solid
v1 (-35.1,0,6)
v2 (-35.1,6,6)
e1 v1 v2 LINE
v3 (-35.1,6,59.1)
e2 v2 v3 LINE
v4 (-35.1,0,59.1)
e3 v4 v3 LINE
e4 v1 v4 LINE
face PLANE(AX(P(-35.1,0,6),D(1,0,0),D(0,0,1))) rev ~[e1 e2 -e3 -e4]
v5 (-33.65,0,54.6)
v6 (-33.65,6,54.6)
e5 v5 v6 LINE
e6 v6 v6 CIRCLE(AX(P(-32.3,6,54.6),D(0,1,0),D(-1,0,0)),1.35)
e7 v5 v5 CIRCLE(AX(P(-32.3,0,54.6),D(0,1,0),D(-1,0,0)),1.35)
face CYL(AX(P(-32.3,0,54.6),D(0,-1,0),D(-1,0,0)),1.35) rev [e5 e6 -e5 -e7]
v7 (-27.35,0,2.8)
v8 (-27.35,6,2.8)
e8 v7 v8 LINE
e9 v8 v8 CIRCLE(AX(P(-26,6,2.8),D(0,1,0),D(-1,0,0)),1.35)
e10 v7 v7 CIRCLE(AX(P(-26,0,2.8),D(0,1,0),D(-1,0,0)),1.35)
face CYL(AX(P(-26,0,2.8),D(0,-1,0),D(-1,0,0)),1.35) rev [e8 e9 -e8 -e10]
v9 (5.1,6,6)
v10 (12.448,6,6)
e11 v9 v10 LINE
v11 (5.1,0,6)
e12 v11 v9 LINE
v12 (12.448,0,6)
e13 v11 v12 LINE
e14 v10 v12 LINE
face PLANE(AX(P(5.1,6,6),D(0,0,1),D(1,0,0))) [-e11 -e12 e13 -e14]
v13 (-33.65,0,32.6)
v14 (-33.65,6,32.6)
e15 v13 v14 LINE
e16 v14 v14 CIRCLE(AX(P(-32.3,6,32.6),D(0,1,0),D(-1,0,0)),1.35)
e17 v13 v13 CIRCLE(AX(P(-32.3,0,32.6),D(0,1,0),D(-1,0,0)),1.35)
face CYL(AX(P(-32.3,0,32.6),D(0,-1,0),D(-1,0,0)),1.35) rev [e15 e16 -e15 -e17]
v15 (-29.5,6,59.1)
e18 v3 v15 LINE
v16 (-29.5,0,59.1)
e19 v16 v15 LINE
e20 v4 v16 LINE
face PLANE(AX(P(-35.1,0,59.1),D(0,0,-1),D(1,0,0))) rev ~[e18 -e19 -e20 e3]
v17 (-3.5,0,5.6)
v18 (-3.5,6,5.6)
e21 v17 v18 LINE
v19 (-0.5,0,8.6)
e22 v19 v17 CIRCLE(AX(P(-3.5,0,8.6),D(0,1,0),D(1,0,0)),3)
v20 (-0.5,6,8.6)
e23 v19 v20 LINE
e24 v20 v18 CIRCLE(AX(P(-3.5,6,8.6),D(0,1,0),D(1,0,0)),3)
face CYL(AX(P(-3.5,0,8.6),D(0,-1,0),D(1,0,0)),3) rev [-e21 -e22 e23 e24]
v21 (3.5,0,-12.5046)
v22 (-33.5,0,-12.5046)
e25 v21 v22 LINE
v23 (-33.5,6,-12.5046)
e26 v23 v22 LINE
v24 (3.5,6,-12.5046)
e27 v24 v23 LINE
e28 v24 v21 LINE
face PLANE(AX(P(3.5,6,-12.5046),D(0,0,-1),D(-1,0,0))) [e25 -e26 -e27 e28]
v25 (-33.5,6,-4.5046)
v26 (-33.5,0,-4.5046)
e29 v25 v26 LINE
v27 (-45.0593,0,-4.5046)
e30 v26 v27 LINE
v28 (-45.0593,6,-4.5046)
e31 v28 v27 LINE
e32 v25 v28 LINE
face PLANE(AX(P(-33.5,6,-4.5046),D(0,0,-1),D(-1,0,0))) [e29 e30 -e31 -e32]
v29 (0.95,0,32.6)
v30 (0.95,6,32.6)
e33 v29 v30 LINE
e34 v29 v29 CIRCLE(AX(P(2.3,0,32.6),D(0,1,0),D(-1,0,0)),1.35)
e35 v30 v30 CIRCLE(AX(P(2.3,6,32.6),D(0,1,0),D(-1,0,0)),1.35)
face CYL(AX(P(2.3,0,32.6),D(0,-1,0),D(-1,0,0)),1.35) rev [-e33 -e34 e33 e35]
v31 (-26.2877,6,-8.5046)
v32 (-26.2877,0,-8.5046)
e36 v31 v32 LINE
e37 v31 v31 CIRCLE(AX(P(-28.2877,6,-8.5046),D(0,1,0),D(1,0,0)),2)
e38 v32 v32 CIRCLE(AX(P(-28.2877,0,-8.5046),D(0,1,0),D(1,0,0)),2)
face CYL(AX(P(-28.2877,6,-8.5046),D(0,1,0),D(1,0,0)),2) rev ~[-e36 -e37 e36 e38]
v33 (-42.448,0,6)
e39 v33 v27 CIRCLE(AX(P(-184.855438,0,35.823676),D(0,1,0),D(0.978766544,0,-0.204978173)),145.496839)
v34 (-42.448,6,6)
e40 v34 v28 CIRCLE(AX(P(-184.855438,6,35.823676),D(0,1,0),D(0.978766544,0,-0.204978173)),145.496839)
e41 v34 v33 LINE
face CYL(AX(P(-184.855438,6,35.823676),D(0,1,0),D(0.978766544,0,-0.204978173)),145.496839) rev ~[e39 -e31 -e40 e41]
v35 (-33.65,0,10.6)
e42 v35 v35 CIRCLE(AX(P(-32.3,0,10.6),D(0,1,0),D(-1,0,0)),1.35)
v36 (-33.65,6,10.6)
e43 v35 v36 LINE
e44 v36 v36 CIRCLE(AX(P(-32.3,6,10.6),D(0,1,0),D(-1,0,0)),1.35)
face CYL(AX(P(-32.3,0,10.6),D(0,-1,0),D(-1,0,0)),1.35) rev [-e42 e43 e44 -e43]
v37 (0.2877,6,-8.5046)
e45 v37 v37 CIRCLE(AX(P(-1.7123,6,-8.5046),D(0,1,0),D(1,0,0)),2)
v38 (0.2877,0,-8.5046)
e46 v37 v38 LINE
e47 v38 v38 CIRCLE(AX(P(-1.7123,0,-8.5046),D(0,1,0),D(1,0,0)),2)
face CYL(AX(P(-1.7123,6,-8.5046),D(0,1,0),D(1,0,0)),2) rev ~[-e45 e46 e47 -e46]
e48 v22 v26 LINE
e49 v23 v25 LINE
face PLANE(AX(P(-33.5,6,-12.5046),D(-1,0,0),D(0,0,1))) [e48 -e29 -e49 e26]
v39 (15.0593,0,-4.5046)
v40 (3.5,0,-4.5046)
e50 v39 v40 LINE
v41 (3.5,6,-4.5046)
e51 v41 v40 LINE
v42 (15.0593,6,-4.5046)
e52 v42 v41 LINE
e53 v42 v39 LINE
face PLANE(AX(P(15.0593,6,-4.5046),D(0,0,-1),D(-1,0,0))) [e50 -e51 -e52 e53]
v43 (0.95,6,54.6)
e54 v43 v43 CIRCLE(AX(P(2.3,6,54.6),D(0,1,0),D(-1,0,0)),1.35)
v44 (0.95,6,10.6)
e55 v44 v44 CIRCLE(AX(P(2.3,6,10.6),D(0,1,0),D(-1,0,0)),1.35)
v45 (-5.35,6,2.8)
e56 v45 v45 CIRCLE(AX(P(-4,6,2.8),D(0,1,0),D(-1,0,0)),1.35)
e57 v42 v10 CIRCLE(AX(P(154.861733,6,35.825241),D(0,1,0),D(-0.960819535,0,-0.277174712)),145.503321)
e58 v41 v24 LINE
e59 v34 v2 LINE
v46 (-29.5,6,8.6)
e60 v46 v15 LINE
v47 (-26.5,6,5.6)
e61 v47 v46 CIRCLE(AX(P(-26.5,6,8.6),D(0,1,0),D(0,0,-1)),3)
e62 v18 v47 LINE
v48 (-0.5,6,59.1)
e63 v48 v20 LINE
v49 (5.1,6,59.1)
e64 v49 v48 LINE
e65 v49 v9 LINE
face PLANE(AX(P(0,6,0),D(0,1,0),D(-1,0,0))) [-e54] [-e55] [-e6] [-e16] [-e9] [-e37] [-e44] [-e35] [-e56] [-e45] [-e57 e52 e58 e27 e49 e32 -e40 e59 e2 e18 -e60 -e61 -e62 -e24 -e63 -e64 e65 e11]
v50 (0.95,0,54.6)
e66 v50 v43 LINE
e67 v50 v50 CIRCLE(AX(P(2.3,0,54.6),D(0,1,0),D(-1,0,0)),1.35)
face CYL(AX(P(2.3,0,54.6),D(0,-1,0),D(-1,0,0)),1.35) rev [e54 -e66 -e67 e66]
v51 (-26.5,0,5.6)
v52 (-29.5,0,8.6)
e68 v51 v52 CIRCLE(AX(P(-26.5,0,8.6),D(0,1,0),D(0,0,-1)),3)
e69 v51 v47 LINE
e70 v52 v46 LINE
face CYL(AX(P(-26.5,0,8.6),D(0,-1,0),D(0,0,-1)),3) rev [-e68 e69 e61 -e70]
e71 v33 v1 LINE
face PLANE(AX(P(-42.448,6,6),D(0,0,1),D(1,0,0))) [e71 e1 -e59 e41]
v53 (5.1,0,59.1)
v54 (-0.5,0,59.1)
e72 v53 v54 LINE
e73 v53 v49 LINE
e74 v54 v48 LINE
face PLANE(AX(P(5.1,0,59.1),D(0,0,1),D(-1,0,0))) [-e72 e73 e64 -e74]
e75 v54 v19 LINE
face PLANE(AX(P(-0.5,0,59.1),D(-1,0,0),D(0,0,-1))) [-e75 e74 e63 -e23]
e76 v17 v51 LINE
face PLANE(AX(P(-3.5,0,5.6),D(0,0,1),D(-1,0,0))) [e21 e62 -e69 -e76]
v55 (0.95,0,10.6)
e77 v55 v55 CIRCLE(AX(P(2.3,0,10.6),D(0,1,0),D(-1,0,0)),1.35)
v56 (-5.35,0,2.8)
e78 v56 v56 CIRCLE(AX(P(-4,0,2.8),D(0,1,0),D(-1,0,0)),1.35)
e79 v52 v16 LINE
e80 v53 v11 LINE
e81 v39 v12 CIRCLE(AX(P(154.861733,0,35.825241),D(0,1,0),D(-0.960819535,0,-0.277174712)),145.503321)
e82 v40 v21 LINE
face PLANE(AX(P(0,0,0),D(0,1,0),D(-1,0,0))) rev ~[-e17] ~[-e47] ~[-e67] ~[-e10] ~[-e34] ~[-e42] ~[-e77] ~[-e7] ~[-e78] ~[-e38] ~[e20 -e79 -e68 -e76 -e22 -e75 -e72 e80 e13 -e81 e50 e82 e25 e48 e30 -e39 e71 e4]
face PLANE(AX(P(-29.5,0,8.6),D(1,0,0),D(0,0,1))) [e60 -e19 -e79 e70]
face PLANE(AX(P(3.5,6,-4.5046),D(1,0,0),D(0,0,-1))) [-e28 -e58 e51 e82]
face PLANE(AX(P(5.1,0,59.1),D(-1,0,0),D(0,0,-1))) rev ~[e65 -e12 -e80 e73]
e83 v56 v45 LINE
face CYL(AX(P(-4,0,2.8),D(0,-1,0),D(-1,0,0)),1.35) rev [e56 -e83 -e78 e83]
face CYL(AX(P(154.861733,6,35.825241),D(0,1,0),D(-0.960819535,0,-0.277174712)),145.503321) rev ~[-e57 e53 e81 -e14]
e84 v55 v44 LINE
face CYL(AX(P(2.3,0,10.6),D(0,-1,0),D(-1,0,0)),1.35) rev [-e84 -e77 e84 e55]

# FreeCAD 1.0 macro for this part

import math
import FreeCAD as App
import Part
import Sketcher
Q = App.Units.Quantity

doc = App.newDocument("Part")
body = doc.addObject("PartDesign::Body", "Body")

sketch1 = body.newObject("Sketcher::SketchObject", "Sketch")
sketch1.AttachmentSupport = (doc.getObject("XZ_Plane"), [""])
sketch1.MapMode = "FlatFace"
sketch1.addGeometry([
    Part.LineSegment(App.Vector(-0.5, 8.6, 0), App.Vector(-0.5, 59.1, 0)),
    Part.LineSegment(App.Vector(-0.5, 59.1, 0), App.Vector(5.1, 59.1, 0)),
    Part.LineSegment(App.Vector(5.1, 59.1, 0), App.Vector(5.1, 6, 0)),
    Part.LineSegment(App.Vector(5.1, 6, 0), App.Vector(0, 0, 0)),
    Part.LineSegment(App.Vector(0, 0, 0), App.Vector(-30, 0, 0)),
    Part.LineSegment(App.Vector(-30, 0, 0), App.Vector(-35.1, 6, 0)),
    Part.LineSegment(App.Vector(-35.1, 6, 0), App.Vector(-35.1, 59.1, 0)),
    Part.LineSegment(App.Vector(-35.1, 59.1, 0), App.Vector(-29.5, 59.1, 0)),
    Part.LineSegment(App.Vector(-29.5, 59.1, 0), App.Vector(-29.5, 8.6, 0)),
    Part.ArcOfCircle(Part.Circle(App.Vector(-26.5, 8.6, 0), App.Vector(0, 0, 1), 3), math.radians(180), math.radians(270)),
    Part.LineSegment(App.Vector(-26.5, 5.6, 0), App.Vector(-3.5, 5.6, 0)),
    Part.ArcOfCircle(Part.Circle(App.Vector(-3.5, 8.6, 0), App.Vector(0, 0, 1), 3), math.radians(-90), math.radians(0)),
    Part.Circle(App.Vector(-4, 2.8, 0), App.Vector(0, 0, 1), 1.35),
    Part.Circle(App.Vector(2.3, 10.6, 0), App.Vector(0, 0, 1), 1.35),
    Part.Circle(App.Vector(-26, 2.8, 0), App.Vector(0, 0, 1), 1.35),
    Part.Circle(App.Vector(-32.3, 10.6, 0), App.Vector(0, 0, 1), 1.35),
    Part.Circle(App.Vector(2.3, 32.6, 0), App.Vector(0, 0, 1), 1.35),
    Part.Circle(App.Vector(2.3, 54.6, 0), App.Vector(0, 0, 1), 1.35),
    Part.Circle(App.Vector(-32.3, 32.6, 0), App.Vector(0, 0, 1), 1.35),
    Part.Circle(App.Vector(-32.3, 54.6, 0), App.Vector(0, 0, 1), 1.35),
], False)
sketch1.addConstraint([
    Sketcher.Constraint("Coincident", 0, 2, 1, 1),
    Sketcher.Constraint("Coincident", 1, 2, 2, 1),
    Sketcher.Constraint("Coincident", 2, 2, 3, 1),
    Sketcher.Constraint("Coincident", 3, 2, 4, 1),
    Sketcher.Constraint("Coincident", 4, 2, 5, 1),
    Sketcher.Constraint("Coincident", 5, 2, 6, 1),
    Sketcher.Constraint("Coincident", 6, 2, 7, 1),
    Sketcher.Constraint("Coincident", 7, 2, 8, 1),
    Sketcher.Constraint("Tangent", 8, 2, 9, 1),
    Sketcher.Constraint("Tangent", 9, 2, 10, 1),
    Sketcher.Constraint("Tangent", 10, 2, 11, 1),
    Sketcher.Constraint("Tangent", 11, 2, 0, 1),
    Sketcher.Constraint("Vertical", 0),
    Sketcher.Constraint("Horizontal", 1),
    Sketcher.Constraint("Vertical", 2),
    Sketcher.Constraint("Horizontal", 4),
    Sketcher.Constraint("Vertical", 6),
    Sketcher.Constraint("Horizontal", 7),
    Sketcher.Constraint("Vertical", 8),
    Sketcher.Constraint("Horizontal", 10),
    Sketcher.Constraint("Coincident", 3, 2, -1, 1),
    Sketcher.Constraint("Equal", 9, 11),
    Sketcher.Constraint("Equal", 12, 13),
    Sketcher.Constraint("Equal", 13, 14),
    Sketcher.Constraint("Equal", 14, 15),
    Sketcher.Constraint("Equal", 15, 16),
    Sketcher.Constraint("Equal", 16, 17),
    Sketcher.Constraint("Equal", 17, 18),
    Sketcher.Constraint("Equal", 18, 19),
    Sketcher.Constraint("Horizontal", 12, 3, 14, 3),
    Sketcher.Constraint("Horizontal", 13, 3, 15, 3),
    Sketcher.Constraint("Horizontal", 16, 3, 18, 3),
    Sketcher.Constraint("Horizontal", 17, 3, 19, 3),
    Sketcher.Constraint("Horizontal", 2, 2, 5, 2),
    Sketcher.Constraint("Horizontal", 1, 2, 6, 2),
    Sketcher.Constraint("Vertical", 13, 3, 16, 3),
    Sketcher.Constraint("Vertical", 16, 3, 17, 3),
    Sketcher.Constraint("Vertical", 15, 3, 18, 3),
    Sketcher.Constraint("Vertical", 18, 3, 19, 3),
    Sketcher.Constraint("Equal", 1, 7),
    Sketcher.Constraint("Equal", 3, 5),
    Sketcher.Constraint("Radius", 9, Q("3 mm")),
    Sketcher.Constraint("Diameter", 12, Q("2.7 mm")),
    Sketcher.Constraint("DistanceX", 4, 2, 4, 1, Q("30 mm")),
    Sketcher.Constraint("DistanceX", 10, 1, 10, 2, Q("23 mm")),
    Sketcher.Constraint("DistanceX", 1, 1, 1, 2, Q("5.6 mm")),
    Sketcher.Constraint("DistanceY", 0, 1, 0, 2, Q("50.5 mm")),
    Sketcher.Constraint("DistanceY", 2, 2, 2, 1, Q("53.1 mm")),
    Sketcher.Constraint("DistanceX", 12, 3, -1, 1, Q("4 mm")),
    Sketcher.Constraint("DistanceX", 14, 3, -1, 1, Q("26 mm")),
    Sketcher.Constraint("DistanceY", -1, 1, 2, 2, Q("6 mm")),
    Sketcher.Constraint("DistanceY", 11, 3, 13, 3, Q("2 mm")),
    Sketcher.Constraint("DistanceY", 13, 3, 16, 3, Q("22 mm")),
    Sketcher.Constraint("DistanceY", 16, 3, 17, 3, Q("22 mm")),
    Sketcher.Constraint("DistanceY", -1, 1, 12, 3, Q("2.8 mm")),
    Sketcher.Constraint("DistanceX", -1, 1, 13, 3, Q("2.3 mm")),
    Sketcher.Constraint("DistanceX", 15, 3, -1, 1, Q("32.3 mm")),
])
pad1 = body.newObject("PartDesign::Pad", "Pad")
pad1.Profile = sketch1
pad1.Length = 6
pad1.Reversed = True

sketch2 = body.newObject("Sketcher::SketchObject", "Sketch001")
sketch2.AttachmentSupport = (doc.getObject("XZ_Plane"), [""])
sketch2.MapMode = "FlatFace"
sketch2.AttachmentOffset = App.Placement(App.Vector(0, 0, -6), App.Rotation())
sketch2.addGeometry([
    Part.LineSegment(App.Vector(3.5, -4.5046, 0), App.Vector(3.5, -12.5046, 0)),
    Part.LineSegment(App.Vector(3.5, -12.5046, 0), App.Vector(-33.5, -12.5046, 0)),
    Part.LineSegment(App.Vector(-33.5, -12.5046, 0), App.Vector(-33.5, -4.5046, 0)),
    Part.LineSegment(App.Vector(-33.5, -4.5046, 0), App.Vector(-45.0593, -4.5046, 0)),
    Part.ArcOfCircle(Part.Circle(App.Vector(-184.855438, 35.823676, 0), App.Vector(0, 0, 1), 145.496839), math.radians(-16.09175), math.radians(-11.828221)),
    Part.LineSegment(App.Vector(-42.448, 6, 0), App.Vector(-35.1, 6, 0)),
    Part.LineSegment(App.Vector(-35.1, 6, 0), App.Vector(-30, 0, 0)),
    Part.LineSegment(App.Vector(-30, 0, 0), App.Vector(0, 0, 0)),
    Part.LineSegment(App.Vector(0, 0, 0), App.Vector(5.1, 6, 0)),
    Part.LineSegment(App.Vector(5.1, 6, 0), App.Vector(12.448, 6, 0)),
    Part.ArcOfCircle(Part.Circle(App.Vector(154.861733, 35.825241, 0), App.Vector(0, 0, 1), 145.503321), math.radians(-168.171684), math.radians(-163.908345)),
    Part.LineSegment(App.Vector(15.0593, -4.5046, 0), App.Vector(3.5, -4.5046, 0)),
    Part.Circle(App.Vector(-28.2877, -8.5046, 0), App.Vector(0, 0, 1), 2),
    Part.Circle(App.Vector(-1.7123, -8.5046, 0), App.Vector(0, 0, 1), 2),
], False)
sketch2.addConstraint([
    Sketcher.Constraint("Coincident", 0, 2, 1, 1),
    Sketcher.Constraint("Coincident", 1, 2, 2, 1),
    Sketcher.Constraint("Coincident", 2, 2, 3, 1),
    Sketcher.Constraint("Coincident", 3, 2, 4, 1),
    Sketcher.Constraint("Coincident", 4, 2, 5, 1),
    Sketcher.Constraint("Coincident", 5, 2, 6, 1),
    Sketcher.Constraint("Coincident", 6, 2, 7, 1),
    Sketcher.Constraint("Coincident", 7, 2, 8, 1),
    Sketcher.Constraint("Coincident", 8, 2, 9, 1),
    Sketcher.Constraint("Coincident", 9, 2, 10, 1),
    Sketcher.Constraint("Coincident", 10, 2, 11, 1),
    Sketcher.Constraint("Coincident", 11, 2, 0, 1),
    Sketcher.Constraint("Vertical", 0),
    Sketcher.Constraint("Horizontal", 1),
    Sketcher.Constraint("Vertical", 2),
    Sketcher.Constraint("Horizontal", 3),
    Sketcher.Constraint("Horizontal", 5),
    Sketcher.Constraint("Horizontal", 7),
    Sketcher.Constraint("Horizontal", 9),
    Sketcher.Constraint("Horizontal", 11),
    Sketcher.Constraint("Coincident", 7, 2, -1, 1),
    Sketcher.Constraint("Equal", 12, 13),
    Sketcher.Constraint("Horizontal", 12, 3, 13, 3),
    Sketcher.Constraint("Horizontal", 5, 2, 8, 2),
    Sketcher.Constraint("Horizontal", 3, 2, 10, 2),
    Sketcher.Constraint("Equal", 5, 9),
    Sketcher.Constraint("Equal", 3, 11),
    Sketcher.Constraint("Equal", 6, 8),
    Sketcher.Constraint("Diameter", 12, Q("4 mm")),
    Sketcher.Constraint("DistanceX", 1, 2, 1, 1, Q("37 mm")),
    Sketcher.Constraint("DistanceX", 7, 1, 7, 2, Q("30 mm")),
    Sketcher.Constraint("DistanceY", 0, 2, 0, 1, Q("8 mm")),
    Sketcher.Constraint("DistanceY", -1, 1, 4, 2, Q("6 mm")),
    Sketcher.Constraint("DistanceY", 0, 2, 13, 3, Q("4 mm")),
    Sketcher.Constraint("DistanceX", -1, 1, 0, 2, Q("3.5 mm")),
    Sketcher.Constraint("DistanceX", 5, 2, -1, 1, Q("35.1 mm")),
    Sketcher.Constraint("Radius", 4, Q("145.4968 mm")),
    Sketcher.Constraint("Radius", 10, Q("145.5033 mm")),
    Sketcher.Constraint("DistanceX", 5, 1, 5, 2, Q("7.348 mm")),
    Sketcher.Constraint("DistanceX", 3, 2, 3, 1, Q("11.5593 mm")),
    Sketcher.Constraint("DistanceX", 13, 3, 10, 3, Q("156.574 mm")),
    Sketcher.Constraint("DistanceX", 3, 2, 13, 3, Q("43.347 mm")),
    Sketcher.Constraint("DistanceX", 12, 3, -1, 1, Q("28.2877 mm")),
])
pad2 = body.newObject("PartDesign::Pad", "Pad001")
pad2.Profile = sketch2
pad2.Length = 6

doc.recompute()
